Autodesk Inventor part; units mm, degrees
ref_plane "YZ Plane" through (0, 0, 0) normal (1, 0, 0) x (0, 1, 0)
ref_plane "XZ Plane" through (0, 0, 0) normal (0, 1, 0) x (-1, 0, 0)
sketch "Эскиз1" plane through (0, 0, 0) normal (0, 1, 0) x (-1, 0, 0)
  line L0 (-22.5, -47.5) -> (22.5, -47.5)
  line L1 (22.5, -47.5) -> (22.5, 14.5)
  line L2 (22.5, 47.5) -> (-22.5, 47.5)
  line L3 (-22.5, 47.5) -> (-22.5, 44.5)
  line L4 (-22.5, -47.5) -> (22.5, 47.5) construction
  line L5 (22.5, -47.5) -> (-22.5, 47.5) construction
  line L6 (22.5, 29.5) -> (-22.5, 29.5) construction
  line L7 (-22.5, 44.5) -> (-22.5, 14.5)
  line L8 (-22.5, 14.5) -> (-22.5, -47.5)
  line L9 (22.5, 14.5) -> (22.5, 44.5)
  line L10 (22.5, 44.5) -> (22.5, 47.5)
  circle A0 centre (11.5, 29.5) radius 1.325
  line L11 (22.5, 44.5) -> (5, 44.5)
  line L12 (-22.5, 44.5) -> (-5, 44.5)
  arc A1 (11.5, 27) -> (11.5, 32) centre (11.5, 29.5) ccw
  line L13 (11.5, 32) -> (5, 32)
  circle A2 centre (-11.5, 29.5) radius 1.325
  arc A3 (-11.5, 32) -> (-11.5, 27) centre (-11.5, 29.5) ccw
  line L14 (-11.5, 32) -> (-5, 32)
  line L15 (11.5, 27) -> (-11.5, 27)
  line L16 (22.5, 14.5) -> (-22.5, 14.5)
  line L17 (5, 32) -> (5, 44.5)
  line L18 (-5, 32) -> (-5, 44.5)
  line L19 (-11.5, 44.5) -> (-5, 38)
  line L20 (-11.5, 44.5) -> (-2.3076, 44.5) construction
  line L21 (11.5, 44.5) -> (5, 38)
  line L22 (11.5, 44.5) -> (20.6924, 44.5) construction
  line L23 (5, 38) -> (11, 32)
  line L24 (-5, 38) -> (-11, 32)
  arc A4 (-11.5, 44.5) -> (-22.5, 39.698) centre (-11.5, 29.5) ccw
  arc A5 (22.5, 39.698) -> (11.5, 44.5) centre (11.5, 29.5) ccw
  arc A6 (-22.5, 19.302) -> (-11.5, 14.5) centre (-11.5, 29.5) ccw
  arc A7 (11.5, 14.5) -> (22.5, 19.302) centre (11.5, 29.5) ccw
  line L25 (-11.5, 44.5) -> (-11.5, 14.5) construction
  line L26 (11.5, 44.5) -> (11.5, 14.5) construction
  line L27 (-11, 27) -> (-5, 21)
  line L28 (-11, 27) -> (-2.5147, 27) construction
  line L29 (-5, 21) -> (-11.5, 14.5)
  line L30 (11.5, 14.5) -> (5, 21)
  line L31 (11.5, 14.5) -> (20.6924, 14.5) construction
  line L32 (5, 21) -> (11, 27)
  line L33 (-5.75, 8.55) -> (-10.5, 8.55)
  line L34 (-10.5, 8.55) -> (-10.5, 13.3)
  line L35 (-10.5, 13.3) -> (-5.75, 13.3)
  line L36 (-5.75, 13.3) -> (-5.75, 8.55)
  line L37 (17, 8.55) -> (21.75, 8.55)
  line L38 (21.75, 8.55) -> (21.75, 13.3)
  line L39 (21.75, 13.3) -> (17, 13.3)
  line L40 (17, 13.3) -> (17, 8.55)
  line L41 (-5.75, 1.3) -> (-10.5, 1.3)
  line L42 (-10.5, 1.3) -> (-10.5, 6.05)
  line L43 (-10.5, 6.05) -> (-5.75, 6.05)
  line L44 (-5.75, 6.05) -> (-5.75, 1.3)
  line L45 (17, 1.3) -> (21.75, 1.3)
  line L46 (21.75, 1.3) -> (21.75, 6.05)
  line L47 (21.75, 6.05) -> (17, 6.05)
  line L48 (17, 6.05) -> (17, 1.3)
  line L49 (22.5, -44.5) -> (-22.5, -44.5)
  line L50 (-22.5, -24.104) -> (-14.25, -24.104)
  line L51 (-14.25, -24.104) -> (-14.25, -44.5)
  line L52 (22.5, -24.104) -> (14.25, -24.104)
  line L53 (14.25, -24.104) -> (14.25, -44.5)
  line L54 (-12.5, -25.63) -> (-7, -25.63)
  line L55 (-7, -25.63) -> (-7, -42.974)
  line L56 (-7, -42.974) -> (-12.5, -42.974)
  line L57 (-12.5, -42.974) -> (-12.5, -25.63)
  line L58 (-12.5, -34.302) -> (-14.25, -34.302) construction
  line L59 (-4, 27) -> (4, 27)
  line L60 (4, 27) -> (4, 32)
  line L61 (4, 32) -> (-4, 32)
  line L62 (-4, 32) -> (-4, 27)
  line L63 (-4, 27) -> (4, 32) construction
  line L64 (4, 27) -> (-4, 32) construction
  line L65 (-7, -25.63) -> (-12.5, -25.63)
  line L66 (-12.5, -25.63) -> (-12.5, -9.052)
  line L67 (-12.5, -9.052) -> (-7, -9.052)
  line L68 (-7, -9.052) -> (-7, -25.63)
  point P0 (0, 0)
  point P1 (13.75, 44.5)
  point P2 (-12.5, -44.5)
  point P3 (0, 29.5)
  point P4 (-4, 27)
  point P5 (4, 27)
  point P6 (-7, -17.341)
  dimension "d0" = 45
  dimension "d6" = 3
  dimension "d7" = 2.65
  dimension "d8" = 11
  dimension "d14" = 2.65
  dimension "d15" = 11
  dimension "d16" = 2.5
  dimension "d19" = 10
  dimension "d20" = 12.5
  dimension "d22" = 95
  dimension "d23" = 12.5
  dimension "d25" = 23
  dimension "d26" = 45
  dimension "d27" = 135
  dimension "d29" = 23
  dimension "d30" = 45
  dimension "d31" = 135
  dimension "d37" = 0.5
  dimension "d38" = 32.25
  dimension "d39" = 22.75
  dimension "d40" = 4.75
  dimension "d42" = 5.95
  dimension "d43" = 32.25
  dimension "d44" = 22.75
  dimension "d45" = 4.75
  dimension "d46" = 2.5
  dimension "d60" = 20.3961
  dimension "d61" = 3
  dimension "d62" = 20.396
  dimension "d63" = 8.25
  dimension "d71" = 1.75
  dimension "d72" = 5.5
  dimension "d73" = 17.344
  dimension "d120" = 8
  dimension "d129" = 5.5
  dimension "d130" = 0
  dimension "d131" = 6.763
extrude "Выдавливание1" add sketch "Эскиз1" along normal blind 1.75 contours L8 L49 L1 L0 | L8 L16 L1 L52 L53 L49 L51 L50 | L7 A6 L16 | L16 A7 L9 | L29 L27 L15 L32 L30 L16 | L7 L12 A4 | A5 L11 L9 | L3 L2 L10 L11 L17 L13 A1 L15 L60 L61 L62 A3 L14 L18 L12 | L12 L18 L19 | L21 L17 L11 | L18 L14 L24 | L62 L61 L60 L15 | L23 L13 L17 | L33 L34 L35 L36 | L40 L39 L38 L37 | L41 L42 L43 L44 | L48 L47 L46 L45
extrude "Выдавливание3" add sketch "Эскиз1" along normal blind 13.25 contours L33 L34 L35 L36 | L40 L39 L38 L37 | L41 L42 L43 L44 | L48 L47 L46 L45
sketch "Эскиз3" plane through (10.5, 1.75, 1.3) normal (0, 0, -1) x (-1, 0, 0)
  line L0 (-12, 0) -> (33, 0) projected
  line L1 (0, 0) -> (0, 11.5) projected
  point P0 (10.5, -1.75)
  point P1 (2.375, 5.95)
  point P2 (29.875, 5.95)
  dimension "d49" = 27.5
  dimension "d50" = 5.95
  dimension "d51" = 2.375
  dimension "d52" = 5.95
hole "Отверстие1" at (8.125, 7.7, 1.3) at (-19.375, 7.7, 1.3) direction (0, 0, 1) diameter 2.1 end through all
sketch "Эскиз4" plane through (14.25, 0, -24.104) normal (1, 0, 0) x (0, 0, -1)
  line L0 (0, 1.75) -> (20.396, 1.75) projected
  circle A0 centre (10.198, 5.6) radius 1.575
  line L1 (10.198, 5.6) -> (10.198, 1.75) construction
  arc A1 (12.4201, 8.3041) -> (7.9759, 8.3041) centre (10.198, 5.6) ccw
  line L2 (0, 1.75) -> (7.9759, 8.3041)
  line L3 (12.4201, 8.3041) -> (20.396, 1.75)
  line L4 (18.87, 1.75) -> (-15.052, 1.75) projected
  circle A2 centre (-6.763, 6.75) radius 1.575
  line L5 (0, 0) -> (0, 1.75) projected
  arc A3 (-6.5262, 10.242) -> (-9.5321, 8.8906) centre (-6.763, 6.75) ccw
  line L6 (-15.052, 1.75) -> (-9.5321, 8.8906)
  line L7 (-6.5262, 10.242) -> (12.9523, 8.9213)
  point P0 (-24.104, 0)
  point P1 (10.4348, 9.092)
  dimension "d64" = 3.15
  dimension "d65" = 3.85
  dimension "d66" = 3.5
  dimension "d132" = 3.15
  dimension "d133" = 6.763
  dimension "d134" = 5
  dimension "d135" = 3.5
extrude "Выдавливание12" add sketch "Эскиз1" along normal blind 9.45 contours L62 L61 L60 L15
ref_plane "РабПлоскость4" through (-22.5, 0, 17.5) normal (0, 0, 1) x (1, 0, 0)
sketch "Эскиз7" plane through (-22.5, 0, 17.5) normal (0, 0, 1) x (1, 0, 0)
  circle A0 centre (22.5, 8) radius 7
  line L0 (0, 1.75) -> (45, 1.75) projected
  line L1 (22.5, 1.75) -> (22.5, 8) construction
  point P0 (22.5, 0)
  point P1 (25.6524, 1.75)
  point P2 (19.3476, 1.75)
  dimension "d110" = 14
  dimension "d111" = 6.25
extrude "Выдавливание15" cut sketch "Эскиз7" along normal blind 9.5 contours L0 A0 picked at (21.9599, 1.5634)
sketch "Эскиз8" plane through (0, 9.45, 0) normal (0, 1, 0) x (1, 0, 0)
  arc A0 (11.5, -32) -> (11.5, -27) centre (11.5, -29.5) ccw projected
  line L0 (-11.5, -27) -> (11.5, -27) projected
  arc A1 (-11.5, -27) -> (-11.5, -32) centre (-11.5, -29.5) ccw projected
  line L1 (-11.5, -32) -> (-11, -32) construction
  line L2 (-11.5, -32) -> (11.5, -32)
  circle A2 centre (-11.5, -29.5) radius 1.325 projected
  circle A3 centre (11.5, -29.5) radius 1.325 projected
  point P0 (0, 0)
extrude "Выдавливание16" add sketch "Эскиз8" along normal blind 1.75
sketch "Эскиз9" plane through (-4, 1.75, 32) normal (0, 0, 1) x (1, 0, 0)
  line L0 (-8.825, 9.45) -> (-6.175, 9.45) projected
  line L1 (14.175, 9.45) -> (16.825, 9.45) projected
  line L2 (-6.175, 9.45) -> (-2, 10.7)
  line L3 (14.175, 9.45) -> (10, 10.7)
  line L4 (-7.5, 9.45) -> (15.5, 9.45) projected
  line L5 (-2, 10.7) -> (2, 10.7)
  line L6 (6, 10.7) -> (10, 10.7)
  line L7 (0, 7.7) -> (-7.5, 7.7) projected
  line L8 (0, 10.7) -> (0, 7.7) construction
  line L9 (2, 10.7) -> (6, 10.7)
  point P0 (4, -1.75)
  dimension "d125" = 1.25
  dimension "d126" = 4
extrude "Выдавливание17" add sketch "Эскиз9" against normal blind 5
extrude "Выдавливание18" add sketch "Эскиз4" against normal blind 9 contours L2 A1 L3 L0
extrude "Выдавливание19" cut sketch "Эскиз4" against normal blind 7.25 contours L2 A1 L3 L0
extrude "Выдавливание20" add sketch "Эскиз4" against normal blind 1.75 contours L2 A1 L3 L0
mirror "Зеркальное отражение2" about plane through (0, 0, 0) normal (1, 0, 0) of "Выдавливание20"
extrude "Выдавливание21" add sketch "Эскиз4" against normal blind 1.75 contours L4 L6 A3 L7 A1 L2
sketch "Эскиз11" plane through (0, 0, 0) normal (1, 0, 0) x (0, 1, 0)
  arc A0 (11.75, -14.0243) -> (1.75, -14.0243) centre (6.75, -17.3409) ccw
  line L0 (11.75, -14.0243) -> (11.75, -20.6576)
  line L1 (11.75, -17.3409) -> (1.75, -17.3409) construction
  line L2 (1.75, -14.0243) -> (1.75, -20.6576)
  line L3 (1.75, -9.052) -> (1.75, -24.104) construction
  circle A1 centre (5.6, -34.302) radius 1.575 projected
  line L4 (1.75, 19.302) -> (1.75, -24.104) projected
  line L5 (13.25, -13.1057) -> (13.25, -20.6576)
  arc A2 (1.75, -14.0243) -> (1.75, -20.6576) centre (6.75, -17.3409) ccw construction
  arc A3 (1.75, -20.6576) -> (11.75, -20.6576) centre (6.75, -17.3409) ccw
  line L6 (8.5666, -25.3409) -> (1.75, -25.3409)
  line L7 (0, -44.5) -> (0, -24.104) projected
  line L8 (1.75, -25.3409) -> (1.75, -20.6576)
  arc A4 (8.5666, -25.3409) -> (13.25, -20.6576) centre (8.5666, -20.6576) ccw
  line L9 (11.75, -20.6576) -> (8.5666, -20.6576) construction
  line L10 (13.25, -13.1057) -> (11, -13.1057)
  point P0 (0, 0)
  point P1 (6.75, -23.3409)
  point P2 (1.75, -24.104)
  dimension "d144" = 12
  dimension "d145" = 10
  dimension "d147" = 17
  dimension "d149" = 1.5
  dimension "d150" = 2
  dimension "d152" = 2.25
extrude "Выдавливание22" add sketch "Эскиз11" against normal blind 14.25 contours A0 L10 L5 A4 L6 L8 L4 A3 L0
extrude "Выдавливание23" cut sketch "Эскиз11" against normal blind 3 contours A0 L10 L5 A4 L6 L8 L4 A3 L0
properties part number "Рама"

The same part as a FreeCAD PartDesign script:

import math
import FreeCAD as App
import Part
import Sketcher
from FreeCAD import Vector
Q = App.Units.Quantity


def add_polygon(sketch, points):
    """Adds a closed chain of lines whose ends are joined by coincident constraints."""
    first, n = sketch.GeometryCount, len(points)
    for a, b in zip(points, points[1:] + points[:1]):
        sketch.addGeometry(Part.LineSegment(App.Vector(*a, 0), App.Vector(*b, 0)), False)
    for i in range(n):
        sketch.addConstraint(Sketcher.Constraint("Coincident", first + i, 2, first + (i + 1) % n, 1))

doc = App.newDocument("Part")
body = doc.addObject("PartDesign::Body", "Body")

# Sketch on XZ plane
sketch1 = body.newObject("Sketcher::SketchObject", "Sketch")
sketch1.AttachmentSupport = (doc.getObject("XZ_Plane"), [""])
sketch1.MapMode = "FlatFace"
sketch1.addGeometry(Part.LineSegment(Vector(22.5, -44.5, 0), Vector(22.5, -47.5, 0)), False)  # 0
sketch1.addGeometry(Part.LineSegment(Vector(22.5, -47.5, 0), Vector(-22.5, -47.5, 0)), False)  # 1
sketch1.addGeometry(Part.LineSegment(Vector(-22.5, -47.5, 0), Vector(-22.5, -44.5, 0)), False)  # 2
sketch1.addGeometry(Part.LineSegment(Vector(-22.5, -44.5, 0), Vector(-14.2, -44.5, 0)), False)  # 3
sketch1.addGeometry(Part.LineSegment(Vector(-14.2, -44.5, 0), Vector(-14.2, -24.1, 0)), False)  # 4
sketch1.addGeometry(Part.LineSegment(Vector(-14.2, -24.1, 0), Vector(-22.5, -24.1, 0)), False)  # 5
sketch1.addGeometry(Part.LineSegment(Vector(-22.5, -24.1, 0), Vector(-22.5, 19.3, 0)), False)  # 6
sketch1.addGeometry(Part.ArcOfCircle(Part.Circle(Vector(-11.5, 29.5, 0), Vector(0, 0, 1), 15), math.radians(-137), math.radians(-90)), False)  # 7
sketch1.addGeometry(Part.LineSegment(Vector(-11.5, 14.5, 0), Vector(-5, 21, 0)), False)  # 8
sketch1.addGeometry(Part.LineSegment(Vector(-5, 21, 0), Vector(-11, 27, 0)), False)  # 9
sketch1.addGeometry(Part.LineSegment(Vector(-11, 27, 0), Vector(-11.5, 27, 0)), False)  # 10
sketch1.addGeometry(Part.ArcOfCircle(Part.Circle(Vector(-11.5, 29.5, 0), Vector(0, 0, 1), 2.5), math.radians(90), math.radians(270)), False)  # 11
sketch1.addGeometry(Part.LineSegment(Vector(-11.5, 32, 0), Vector(-11, 32, 0)), False)  # 12
sketch1.addGeometry(Part.LineSegment(Vector(-11, 32, 0), Vector(-5, 38, 0)), False)  # 13
sketch1.addGeometry(Part.LineSegment(Vector(-5, 38, 0), Vector(-11.5, 44.5, 0)), False)  # 14
sketch1.addGeometry(Part.ArcOfCircle(Part.Circle(Vector(-11.5, 29.5, 0), Vector(0, 0, 1), 15), math.radians(90), math.radians(137)), False)  # 15
sketch1.addGeometry(Part.LineSegment(Vector(-22.5, 39.7, 0), Vector(-22.5, 47.5, 0)), False)  # 16
sketch1.addGeometry(Part.LineSegment(Vector(-22.5, 47.5, 0), Vector(22.5, 47.5, 0)), False)  # 17
sketch1.addGeometry(Part.LineSegment(Vector(22.5, 47.5, 0), Vector(22.5, 39.7, 0)), False)  # 18
sketch1.addGeometry(Part.ArcOfCircle(Part.Circle(Vector(11.5, 29.5, 0), Vector(0, 0, 1), 15), math.radians(43), math.radians(90)), False)  # 19
sketch1.addGeometry(Part.LineSegment(Vector(11.5, 44.5, 0), Vector(5, 38, 0)), False)  # 20
sketch1.addGeometry(Part.LineSegment(Vector(5, 38, 0), Vector(11, 32, 0)), False)  # 21
sketch1.addGeometry(Part.LineSegment(Vector(11, 32, 0), Vector(11.5, 32, 0)), False)  # 22
sketch1.addGeometry(Part.ArcOfCircle(Part.Circle(Vector(11.5, 29.5, 0), Vector(0, 0, 1), 2.5), math.radians(-90), math.radians(90)), False)  # 23
sketch1.addGeometry(Part.LineSegment(Vector(11.5, 27, 0), Vector(11, 27, 0)), False)  # 24
sketch1.addGeometry(Part.LineSegment(Vector(11, 27, 0), Vector(5, 21, 0)), False)  # 25
sketch1.addGeometry(Part.LineSegment(Vector(5, 21, 0), Vector(11.5, 14.5, 0)), False)  # 26
sketch1.addGeometry(Part.ArcOfCircle(Part.Circle(Vector(11.5, 29.5, 0), Vector(0, 0, 1), 15), math.radians(-90), math.radians(-43)), False)  # 27
sketch1.addGeometry(Part.LineSegment(Vector(22.5, 19.3, 0), Vector(22.5, -24.1, 0)), False)  # 28
sketch1.addGeometry(Part.LineSegment(Vector(22.5, -24.1, 0), Vector(14.2, -24.1, 0)), False)  # 29
sketch1.addGeometry(Part.LineSegment(Vector(14.2, -24.1, 0), Vector(14.2, -44.5, 0)), False)  # 30
sketch1.addGeometry(Part.LineSegment(Vector(14.2, -44.5, 0), Vector(22.5, -44.5, 0)), False)  # 31
add_polygon(sketch1, [(12.5, -43), (12.5, -9.1), (7, -9.1), (7, -43)])  # lines 32-35
sketch1.addGeometry(Part.Circle(Vector(11.5, 29.5, 0), Vector(0, 0, 1), 1.3), False)  # 36
sketch1.addGeometry(Part.Circle(Vector(-11.5, 29.5, 0), Vector(0, 0, 1), 1.3), False)  # 37
sketch1.addConstraint([
    Sketcher.Constraint("Coincident", 0, 2, 1, 1),
    Sketcher.Constraint("Coincident", 1, 2, 2, 1),
    Sketcher.Constraint("Coincident", 2, 2, 3, 1),
    Sketcher.Constraint("Coincident", 3, 2, 4, 1),
    Sketcher.Constraint("Coincident", 4, 2, 5, 1),
    Sketcher.Constraint("Coincident", 5, 2, 6, 1),
    Sketcher.Constraint("Coincident", 6, 2, 7, 1),
    Sketcher.Constraint("Coincident", 7, 2, 8, 1),
    Sketcher.Constraint("Coincident", 8, 2, 9, 1),
    Sketcher.Constraint("Coincident", 9, 2, 10, 1),
    Sketcher.Constraint("Tangent", 10, 2, 11, 2),
    Sketcher.Constraint("Tangent", 11, 1, 12, 1),
    Sketcher.Constraint("Coincident", 12, 2, 13, 1),
    Sketcher.Constraint("Coincident", 13, 2, 14, 1),
    Sketcher.Constraint("Coincident", 14, 2, 15, 1),
    Sketcher.Constraint("Coincident", 15, 2, 16, 1),
    Sketcher.Constraint("Coincident", 16, 2, 17, 1),
    Sketcher.Constraint("Coincident", 17, 2, 18, 1),
    Sketcher.Constraint("Coincident", 18, 2, 19, 1),
    Sketcher.Constraint("Coincident", 19, 2, 20, 1),
    Sketcher.Constraint("Coincident", 20, 2, 21, 1),
    Sketcher.Constraint("Coincident", 21, 2, 22, 1),
    Sketcher.Constraint("Tangent", 22, 2, 23, 2),
    Sketcher.Constraint("Tangent", 23, 1, 24, 1),
    Sketcher.Constraint("Coincident", 24, 2, 25, 1),
    Sketcher.Constraint("Coincident", 25, 2, 26, 1),
    Sketcher.Constraint("Coincident", 26, 2, 27, 1),
    Sketcher.Constraint("Coincident", 27, 2, 28, 1),
    Sketcher.Constraint("Coincident", 28, 2, 29, 1),
    Sketcher.Constraint("Coincident", 29, 2, 30, 1),
    Sketcher.Constraint("Coincident", 30, 2, 31, 1),
    Sketcher.Constraint("Coincident", 31, 2, 0, 1),
    Sketcher.Constraint("Vertical", 0),
    Sketcher.Constraint("Horizontal", 1),
    Sketcher.Constraint("Vertical", 2),
    Sketcher.Constraint("Horizontal", 3),
    Sketcher.Constraint("Vertical", 4),
    Sketcher.Constraint("Horizontal", 5),
    Sketcher.Constraint("Vertical", 6),
    Sketcher.Constraint("Horizontal", 10),
    Sketcher.Constraint("Horizontal", 12),
    Sketcher.Constraint("Vertical", 16),
    Sketcher.Constraint("Horizontal", 17),
    Sketcher.Constraint("Vertical", 18),
    Sketcher.Constraint("Horizontal", 22),
    Sketcher.Constraint("Horizontal", 24),
    Sketcher.Constraint("Vertical", 28),
    Sketcher.Constraint("Horizontal", 29),
    Sketcher.Constraint("Vertical", 30),
    Sketcher.Constraint("Horizontal", 31),
    Sketcher.Constraint("Vertical", 32),
    Sketcher.Constraint("Horizontal", 33),
    Sketcher.Constraint("Vertical", 34),
    Sketcher.Constraint("Horizontal", 35),
    Sketcher.Constraint("Coincident", 11, 3, 7, 3),
    Sketcher.Constraint("Coincident", 15, 3, 7, 3),
    Sketcher.Constraint("Coincident", 23, 3, 19, 3),
    Sketcher.Constraint("Coincident", 27, 3, 19, 3),
    Sketcher.Constraint("Coincident", 36, 3, 19, 3),
    Sketcher.Constraint("Coincident", 37, 3, 7, 3),
    Sketcher.Constraint("Equal", 7, 15),
    Sketcher.Constraint("Equal", 15, 19),
    Sketcher.Constraint("Equal", 11, 23),
    Sketcher.Constraint("Equal", 19, 27),
    Sketcher.Constraint("Equal", 36, 37),
    Sketcher.Constraint("Symmetric", 0, 2, 16, 2, -1, 1),
    Sketcher.Constraint("Symmetric", 7, 3, 19, 3, -2),
    Sketcher.Constraint("Symmetric", 13, 2, 20, 2, -2),
    Sketcher.Constraint("Symmetric", 8, 2, 25, 2, -2),
    Sketcher.Constraint("Symmetric", 5, 2, 28, 2, -2),
    Sketcher.Constraint("Symmetric", 3, 2, 30, 2, -2),
    Sketcher.Constraint("Perpendicular", 8, 9),
    Sketcher.Constraint("Perpendicular", 9, 13),
    Sketcher.Constraint("Perpendicular", 13, 14),
    Sketcher.Constraint("Perpendicular", 14, 20),
    Sketcher.Constraint("Perpendicular", 20, 21),
    Sketcher.Constraint("Perpendicular", 21, 25),
    Sketcher.Constraint("Perpendicular", 25, 26),
    Sketcher.Constraint("Horizontal", 15, 2, 18, 2),
    Sketcher.Constraint("Vertical", 2, 2, 5, 2),
    Sketcher.Constraint("Vertical", 37, 3, 7, 2),
    Sketcher.Constraint("Vertical", 9, 2, 12, 2),
    Sketcher.Constraint("Vertical", 8, 2, 13, 2),
    Sketcher.Constraint("Vertical", 11, 1, 14, 2),
    Sketcher.Constraint("Vertical", 6, 2, 15, 2),
    Sketcher.Constraint("Radius", 11, Q("2.5 mm")),
    Sketcher.Constraint("Diameter", 36, Q("2.65 mm")),
    Sketcher.Constraint("DistanceX", 1, 2, 1, 1, Q("45 mm")),
    Sketcher.Constraint("DistanceY", 0, 2, 0, 1, Q("3 mm")),
    Sketcher.Constraint("DistanceX", 10, 2, 10, 1, Q("0.5 mm")),
    Sketcher.Constraint("DistanceX", 33, 2, 33, 1, Q("5.5 mm")),
    Sketcher.Constraint("DistanceX", 9, 2, -1, 1, Q("11 mm")),
    Sketcher.Constraint("Radius", 7, Q("15 mm")),
    Sketcher.Constraint("DistanceY", 14, 2, 16, 2, Q("3 mm")),
    Sketcher.Constraint("DistanceX", 32, 2, 28, 2, Q("10 mm")),
    Sketcher.Constraint("DistanceX", 3, 1, 3, 2, Q("8.25 mm")),
    Sketcher.Constraint("DistanceY", 4, 1, 4, 2, Q("20.396 mm")),
    Sketcher.Constraint("DistanceY", -1, 1, 8, 2, Q("21 mm")),
    Sketcher.Constraint("DistanceY", 32, 1, 32, 2, Q("33.922 mm")),
    Sketcher.Constraint("DistanceY", 34, 2, 29, 2, Q("18.87 mm")),
])
pad1 = body.newObject("PartDesign::Pad", "Pad")
pad1.Profile = sketch1
pad1.Length = 1.75
pad1.Reversed = True

# Sketch on XZ plane
sketch2 = body.newObject("Sketcher::SketchObject", "Sketch001")
sketch2.AttachmentSupport = (doc.getObject("XZ_Plane"), [""])
sketch2.MapMode = "FlatFace"
add_polygon(sketch2, [(10.5, 8.6), (5.8, 8.6), (5.8, 13.3), (10.5, 13.3)])  # lines 0-3
add_polygon(sketch2, [(-17, 13.3), (-17, 8.6), (-21.8, 8.6), (-21.8, 13.3)])  # lines 4-7
add_polygon(sketch2, [(10.5, 1.3), (5.8, 1.3), (5.8, 6), (10.5, 6)])  # lines 8-11
add_polygon(sketch2, [(-17, 6), (-17, 1.3), (-21.8, 1.3), (-21.8, 6)])  # lines 12-15
sketch2.addConstraint([
    Sketcher.Constraint("Horizontal", 0),
    Sketcher.Constraint("Vertical", 1),
    Sketcher.Constraint("Horizontal", 2),
    Sketcher.Constraint("Vertical", 3),
    Sketcher.Constraint("Vertical", 4),
    Sketcher.Constraint("Horizontal", 5),
    Sketcher.Constraint("Vertical", 6),
    Sketcher.Constraint("Horizontal", 7),
    Sketcher.Constraint("Horizontal", 8),
    Sketcher.Constraint("Vertical", 9),
    Sketcher.Constraint("Horizontal", 10),
    Sketcher.Constraint("Vertical", 11),
    Sketcher.Constraint("Vertical", 12),
    Sketcher.Constraint("Horizontal", 13),
    Sketcher.Constraint("Vertical", 14),
    Sketcher.Constraint("Horizontal", 15),
    Sketcher.Constraint("Horizontal", 3, 2, 4, 2),
    Sketcher.Constraint("Horizontal", 2, 2, 6, 2),
    Sketcher.Constraint("Horizontal", 11, 2, 12, 2),
    Sketcher.Constraint("Horizontal", 10, 2, 14, 2),
    Sketcher.Constraint("Vertical", 1, 2, 8, 2),
    Sketcher.Constraint("Vertical", 3, 2, 10, 2),
    Sketcher.Constraint("Vertical", 7, 2, 12, 2),
    Sketcher.Constraint("Vertical", 6, 2, 13, 2),
    Sketcher.Constraint("Equal", 2, 5),
    Sketcher.Constraint("Equal", 15, 1),
    Sketcher.Constraint("Equal", 6, 9),
    Sketcher.Constraint("DistanceX", 0, 2, 0, 1, Q("4.75 mm")),
    Sketcher.Constraint("DistanceY", 9, 2, 0, 2, Q("2.5 mm")),
    Sketcher.Constraint("DistanceX", 4, 2, 0, 2, Q("22.75 mm")),
    Sketcher.Constraint("DistanceX", 4, 2, -1, 1, Q("17 mm")),
    Sketcher.Constraint("DistanceY", -1, 1, 1, 2, Q("13.3 mm")),
])
pad2 = body.newObject("PartDesign::Pad", "Pad001")
pad2.Profile = sketch2
pad2.Length = 13.25
pad2.Reversed = True

# Sketch on XY plane
sketch3 = body.newObject("Sketcher::SketchObject", "Sketch002")
sketch3.AttachmentSupport = (doc.getObject("XY_Plane"), [""])
sketch3.MapMode = "FlatFace"
sketch3.AttachmentOffset = App.Placement(Vector(0, 0, 1.3), App.Rotation())
sketch3.addGeometry([
    Part.Circle(Vector(8.1, 7.7, 0), Vector(0, 0, 1), 1.1),
    Part.Circle(Vector(-19.4, 7.7, 0), Vector(0, 0, 1), 1.1),
], False)
sketch3.addConstraint([
    Sketcher.Constraint("Equal", 0, 1),
    Sketcher.Constraint("Horizontal", 0, 3, 1, 3),
    Sketcher.Constraint("Diameter", 0, Q("2.1 mm")),
    Sketcher.Constraint("DistanceY", -1, 1, 0, 3, Q("7.7 mm")),
    Sketcher.Constraint("DistanceX", 1, 3, 0, 3, Q("27.5 mm")),
    Sketcher.Constraint("DistanceX", -1, 1, 0, 3, Q("8.125 mm")),
])
doc.recompute()
hole = body.newObject("PartDesign::Hole", "Hole")
hole.Profile = sketch3
hole.ThreadType = "None"
hole.Diameter = 2.1
hole.DepthType = "ThroughAll"
hole.Reversed = True

# Sketch on XZ plane
sketch4 = body.newObject("Sketcher::SketchObject", "Sketch003")
sketch4.AttachmentSupport = (doc.getObject("XZ_Plane"), [""])
sketch4.MapMode = "FlatFace"
add_polygon(sketch4, [(4, 32), (4, 27), (-4, 27), (-4, 32)])  # lines 0-3
sketch4.addConstraint([
    Sketcher.Constraint("Vertical", 0),
    Sketcher.Constraint("Horizontal", 1),
    Sketcher.Constraint("Vertical", 2),
    Sketcher.Constraint("Horizontal", 3),
    Sketcher.Constraint("DistanceX", 1, 2, 1, 1, Q("8 mm")),
    Sketcher.Constraint("DistanceY", 0, 2, 0, 1, Q("5 mm")),
    Sketcher.Constraint("DistanceX", -1, 1, 0, 2, Q("4 mm")),
    Sketcher.Constraint("DistanceY", -1, 1, 0, 2, Q("27 mm")),
])
pad3 = body.newObject("PartDesign::Pad", "Pad002")
pad3.Profile = sketch4
pad3.Length = 9.45
pad3.Reversed = True

# Sketch on XY plane
sketch5 = body.newObject("Sketcher::SketchObject", "Sketch004")
sketch5.AttachmentSupport = (doc.getObject("XY_Plane"), [""])
sketch5.MapMode = "FlatFace"
sketch5.AttachmentOffset = App.Placement(Vector(0, 0, 17.5), App.Rotation())
sketch5.addGeometry([
    Part.LineSegment(Vector(3, 2, 0), Vector(-3, 2, 0)),
    Part.ArcOfCircle(Part.Circle(Vector(0, 8, 0), Vector(0, 0, 1), 7), math.radians(-117), math.radians(-63)),
], False)
sketch5.addConstraint([
    Sketcher.Constraint("Coincident", 0, 1, 1, 2),
    Sketcher.Constraint("Coincident", 1, 1, 0, 2),
    Sketcher.Constraint("Horizontal", 0),
    Sketcher.Constraint("PointOnObject", 1, 3, -2),
    Sketcher.Constraint("Radius", 1, Q("7 mm")),
    Sketcher.Constraint("DistanceY", 0, 1, 1, 3, Q("6.25 mm")),
    Sketcher.Constraint("DistanceY", -1, 1, 1, 3, Q("8 mm")),
])
pocket1 = body.newObject("PartDesign::Pocket", "Pocket")
pocket1.Profile = sketch5
pocket1.Length = 9.5
pocket1.Reversed = True

# Sketch on XZ plane
sketch6 = body.newObject("Sketcher::SketchObject", "Sketch005")
sketch6.AttachmentSupport = (doc.getObject("XZ_Plane"), [""])
sketch6.MapMode = "FlatFace"
sketch6.AttachmentOffset = App.Placement(Vector(0, 0, -9.45), App.Rotation())
sketch6.addGeometry([
    Part.LineSegment(Vector(-11.5, 32, 0), Vector(11.5, 32, 0)),  # 0
    Part.ArcOfCircle(Part.Circle(Vector(11.5, 29.5, 0), Vector(0, 0, 1), 2.5), math.radians(-90), math.radians(90)),  # 1
    Part.LineSegment(Vector(11.5, 27, 0), Vector(-11.5, 27, 0)),  # 2
    Part.ArcOfCircle(Part.Circle(Vector(-11.5, 29.5, 0), Vector(0, 0, 1), 2.5), math.radians(90), math.radians(270)),  # 3
    Part.Circle(Vector(-11.5, 29.5, 0), Vector(0, 0, 1), 1.3),  # 4
    Part.Circle(Vector(11.5, 29.5, 0), Vector(0, 0, 1), 1.3),  # 5
], False)
sketch6.addConstraint([
    Sketcher.Constraint("Tangent", 0, 2, 1, 2),
    Sketcher.Constraint("Tangent", 1, 1, 2, 1),
    Sketcher.Constraint("Tangent", 2, 2, 3, 2),
    Sketcher.Constraint("Tangent", 3, 1, 0, 1),
    Sketcher.Constraint("Horizontal", 0),
    Sketcher.Constraint("Horizontal", 2),
    Sketcher.Constraint("Coincident", 4, 3, 3, 3),
    Sketcher.Constraint("Coincident", 5, 3, 1, 3),
    Sketcher.Constraint("Equal", 4, 5),
    Sketcher.Constraint("Radius", 1, Q("2.5 mm")),
    Sketcher.Constraint("Diameter", 4, Q("2.65 mm")),
    Sketcher.Constraint("DistanceX", 0, 1, 0, 2, Q("23 mm")),
    Sketcher.Constraint("DistanceY", -1, 1, 0, 2, Q("32 mm")),
    Sketcher.Constraint("DistanceX", -1, 1, 1, 3, Q("11.5 mm")),
])
pad4 = body.newObject("PartDesign::Pad", "Pad003")
pad4.Profile = sketch6
pad4.Length = 1.75
pad4.Reversed = True

# Sketch on XY plane
sketch7 = body.newObject("Sketcher::SketchObject", "Sketch006")
sketch7.AttachmentSupport = (doc.getObject("XY_Plane"), [""])
sketch7.MapMode = "FlatFace"
sketch7.AttachmentOffset = App.Placement(Vector(0, 0, 32), App.Rotation())
add_polygon(sketch7, [(-6, 12.4), (-10.2, 11.2), (10.2, 11.2), (6, 12.4)])  # lines 0-3
sketch7.addConstraint([
    Sketcher.Constraint("Horizontal", 1),
    Sketcher.Constraint("Horizontal", 3),
    Sketcher.Constraint("Equal", 0, 2),
    Sketcher.Constraint("DistanceX", 3, 2, 3, 1, Q("12 mm")),
    Sketcher.Constraint("DistanceY", 1, 2, 2, 2, Q("1.25 mm")),
    Sketcher.Constraint("DistanceX", -1, 1, 2, 2, Q("6 mm")),
    Sketcher.Constraint("DistanceX", 1, 1, 1, 2, Q("20.35 mm")),
    Sketcher.Constraint("DistanceY", -1, 1, 0, 2, Q("11.2 mm")),
])
pad5 = body.newObject("PartDesign::Pad", "Pad004")
pad5.Profile = sketch7
pad5.Length = 5
pad5.Reversed = True

# Sketch on YZ plane
sketch8 = body.newObject("Sketcher::SketchObject", "Sketch007")
sketch8.AttachmentSupport = (doc.getObject("YZ_Plane"), [""])
sketch8.MapMode = "FlatFace"
sketch8.AttachmentOffset = App.Placement(Vector(0, 0, 14.25), App.Rotation())
sketch8.addGeometry([
    Part.LineSegment(Vector(8.3, -32.1, 0), Vector(1.8, -24.1, 0)),  # 0
    Part.LineSegment(Vector(1.8, -24.1, 0), Vector(1.8, -44.5, 0)),  # 1
    Part.LineSegment(Vector(1.8, -44.5, 0), Vector(8.3, -36.5, 0)),  # 2
    Part.ArcOfCircle(Part.Circle(Vector(5.6, -34.3, 0), Vector(0, 0, 1), 3.5), math.radians(-39), math.radians(39)),  # 3
    Part.Circle(Vector(5.6, -34.3, 0), Vector(0, 0, 1), 1.6),  # 4
], False)
sketch8.addConstraint([
    Sketcher.Constraint("Coincident", 0, 2, 1, 1),
    Sketcher.Constraint("Coincident", 1, 2, 2, 1),
    Sketcher.Constraint("Tangent", 2, 2, 3, 1),
    Sketcher.Constraint("Tangent", 3, 2, 0, 1),
    Sketcher.Constraint("Vertical", 1),
    Sketcher.Constraint("Coincident", 4, 3, 3, 3),
    Sketcher.Constraint("Vertical", 2, 2, 3, 2),
    Sketcher.Constraint("Radius", 3, Q("3.5 mm")),
    Sketcher.Constraint("Diameter", 4, Q("3.15 mm")),
    Sketcher.Constraint("DistanceX", 0, 2, 3, 3, Q("3.85 mm")),
    Sketcher.Constraint("DistanceX", -1, 1, 3, 3, Q("5.6 mm")),
    Sketcher.Constraint("DistanceY", 1, 2, -1, 1, Q("44.5 mm")),
    Sketcher.Constraint("DistanceY", 1, 2, 1, 1, Q("20.396 mm")),
])
pad6 = body.newObject("PartDesign::Pad", "Pad005")
pad6.Profile = sketch8
pad6.Length = 9
pad6.Reversed = True

# Sketch on YZ plane
sketch9 = body.newObject("Sketcher::SketchObject", "Sketch008")
sketch9.AttachmentSupport = (doc.getObject("YZ_Plane"), [""])
sketch9.MapMode = "FlatFace"
sketch9.AttachmentOffset = App.Placement(Vector(0, 0, 14.25), App.Rotation())
sketch9.addGeometry([
    Part.LineSegment(Vector(8.3, -32.1, 0), Vector(1.8, -24.1, 0)),  # 0
    Part.LineSegment(Vector(1.8, -24.1, 0), Vector(1.8, -44.5, 0)),  # 1
    Part.LineSegment(Vector(1.8, -44.5, 0), Vector(8.3, -36.5, 0)),  # 2
    Part.ArcOfCircle(Part.Circle(Vector(5.6, -34.3, 0), Vector(0, 0, 1), 3.5), math.radians(-39), math.radians(39)),  # 3
    Part.Circle(Vector(5.6, -34.3, 0), Vector(0, 0, 1), 1.6),  # 4
], False)
sketch9.addConstraint([
    Sketcher.Constraint("Coincident", 0, 2, 1, 1),
    Sketcher.Constraint("Coincident", 1, 2, 2, 1),
    Sketcher.Constraint("Tangent", 2, 2, 3, 1),
    Sketcher.Constraint("Tangent", 3, 2, 0, 1),
    Sketcher.Constraint("Vertical", 1),
    Sketcher.Constraint("Coincident", 4, 3, 3, 3),
    Sketcher.Constraint("Vertical", 2, 2, 3, 2),
    Sketcher.Constraint("Radius", 3, Q("3.5 mm")),
    Sketcher.Constraint("Diameter", 4, Q("3.15 mm")),
    Sketcher.Constraint("DistanceX", 0, 2, 3, 3, Q("3.85 mm")),
    Sketcher.Constraint("DistanceX", -1, 1, 3, 3, Q("5.6 mm")),
    Sketcher.Constraint("DistanceY", 1, 2, -1, 1, Q("44.5 mm")),
    Sketcher.Constraint("DistanceY", 1, 2, 1, 1, Q("20.396 mm")),
])
pocket2 = body.newObject("PartDesign::Pocket", "Pocket001")
pocket2.Profile = sketch9
pocket2.Length = 7.25

# Sketch on YZ plane
sketch10 = body.newObject("Sketcher::SketchObject", "Sketch009")
sketch10.AttachmentSupport = (doc.getObject("YZ_Plane"), [""])
sketch10.MapMode = "FlatFace"
sketch10.AttachmentOffset = App.Placement(Vector(0, 0, 14.25), App.Rotation())
sketch10.addGeometry([
    Part.LineSegment(Vector(8.3, -32.1, 0), Vector(1.8, -24.1, 0)),  # 0
    Part.LineSegment(Vector(1.8, -24.1, 0), Vector(1.8, -44.5, 0)),  # 1
    Part.LineSegment(Vector(1.8, -44.5, 0), Vector(8.3, -36.5, 0)),  # 2
    Part.ArcOfCircle(Part.Circle(Vector(5.6, -34.3, 0), Vector(0, 0, 1), 3.5), math.radians(-39), math.radians(39)),  # 3
    Part.Circle(Vector(5.6, -34.3, 0), Vector(0, 0, 1), 1.6),  # 4
], False)
sketch10.addConstraint([
    Sketcher.Constraint("Coincident", 0, 2, 1, 1),
    Sketcher.Constraint("Coincident", 1, 2, 2, 1),
    Sketcher.Constraint("Tangent", 2, 2, 3, 1),
    Sketcher.Constraint("Tangent", 3, 2, 0, 1),
    Sketcher.Constraint("Vertical", 1),
    Sketcher.Constraint("Coincident", 4, 3, 3, 3),
    Sketcher.Constraint("Vertical", 2, 2, 3, 2),
    Sketcher.Constraint("Radius", 3, Q("3.5 mm")),
    Sketcher.Constraint("Diameter", 4, Q("3.15 mm")),
    Sketcher.Constraint("DistanceX", 0, 2, 3, 3, Q("3.85 mm")),
    Sketcher.Constraint("DistanceX", -1, 1, 3, 3, Q("5.6 mm")),
    Sketcher.Constraint("DistanceY", 1, 2, -1, 1, Q("44.5 mm")),
    Sketcher.Constraint("DistanceY", 1, 2, 1, 1, Q("20.396 mm")),
])
pad7 = body.newObject("PartDesign::Pad", "Pad006")
pad7.Profile = sketch10
pad7.Length = 1.75
pad7.Reversed = True
doc.recompute()

mirrored = body.newObject("PartDesign::Mirrored", "Mirrored")
mirrored.Originals = [pad7]
mirrored.MirrorPlane = (doc.getObject("YZ_Plane"), [""])
body.Tip = mirrored

# Sketch on YZ plane
sketch11 = body.newObject("Sketcher::SketchObject", "Sketch010")
sketch11.AttachmentSupport = (doc.getObject("YZ_Plane"), [""])
sketch11.MapMode = "FlatFace"
sketch11.AttachmentOffset = App.Placement(Vector(0, 0, 14.25), App.Rotation())
sketch11.addGeometry([
    Part.LineSegment(Vector(1.8, -9.1, 0), Vector(1.8, -24.1, 0)),  # 0
    Part.LineSegment(Vector(1.8, -24.1, 0), Vector(8.3, -32.1, 0)),  # 1
    Part.ArcOfCircle(Part.Circle(Vector(5.6, -34.3, 0), Vector(0, 0, 1), 3.5), math.radians(-4), math.radians(39)),  # 2
    Part.LineSegment(Vector(9.1, -34.5, 0), Vector(10.2, -17.6, 0)),  # 3
    Part.ArcOfCircle(Part.Circle(Vector(6.8, -17.3, 0), Vector(0, 0, 1), 3.5), math.radians(-4), math.radians(52)),  # 4
    Part.LineSegment(Vector(8.9, -14.6, 0), Vector(1.8, -9.1, 0)),  # 5
    Part.Circle(Vector(6.8, -17.3, 0), Vector(0, 0, 1), 1.6),  # 6
], False)
sketch11.addConstraint([
    Sketcher.Constraint("Coincident", 0, 2, 1, 1),
    Sketcher.Constraint("Tangent", 1, 2, 2, 2),
    Sketcher.Constraint("Tangent", 2, 1, 3, 1),
    Sketcher.Constraint("Tangent", 3, 2, 4, 1),
    Sketcher.Constraint("Tangent", 4, 2, 5, 1),
    Sketcher.Constraint("Coincident", 5, 2, 0, 1),
    Sketcher.Constraint("Vertical", 0),
    Sketcher.Constraint("Coincident", 6, 3, 4, 3),
    Sketcher.Constraint("Equal", 2, 4),
    Sketcher.Constraint("Radius", 2, Q("3.5 mm")),
    Sketcher.Constraint("Diameter", 6, Q("3.15 mm")),
    Sketcher.Constraint("DistanceX", 0, 2, 4, 3, Q("5 mm")),
    Sketcher.Constraint("DistanceX", 0, 2, 2, 3, Q("3.85 mm")),
    Sketcher.Constraint("Distance", 3, Q("17 mm")),
    Sketcher.Constraint("DistanceY", 0, 2, 4, 3, Q("6.763 mm")),
    Sketcher.Constraint("DistanceX", -1, 1, 2, 3, Q("5.6 mm")),
    Sketcher.Constraint("DistanceY", 0, 2, 0, 1, Q("15.052 mm")),
    Sketcher.Constraint("DistanceY", 1, 2, -1, 1, Q("32.08 mm")),
])
pad8 = body.newObject("PartDesign::Pad", "Pad007")
pad8.Profile = sketch11
pad8.Length = 1.75
pad8.Reversed = True

# Sketch on YZ plane
sketch12 = body.newObject("Sketcher::SketchObject", "Sketch011")
sketch12.AttachmentSupport = (doc.getObject("YZ_Plane"), [""])
sketch12.MapMode = "FlatFace"
sketch12.addGeometry([
    Part.ArcOfCircle(Part.Circle(Vector(6.8, -17.3, 0), Vector(0, 0, 1), 6), math.radians(33.56), math.radians(44.9)),  # 0
    Part.LineSegment(Vector(11.8, -14, 0), Vector(11.8, -20.7, 0)),  # 1
    Part.ArcOfCircle(Part.Circle(Vector(6.8, -17.3, 0), Vector(0, 0, 1), 6), math.radians(-146), math.radians(-34)),  # 2
    Part.LineSegment(Vector(1.8, -20.7, 0), Vector(1.8, -25.3, 0)),  # 3
    Part.LineSegment(Vector(1.8, -25.3, 0), Vector(8.6, -25.3, 0)),  # 4
    Part.ArcOfCircle(Part.Circle(Vector(8.6, -20.7, 0), Vector(0, 0, 1), 4.7), math.radians(-90), math.radians(0)),  # 5
    Part.LineSegment(Vector(13.2, -20.7, 0), Vector(13.2, -13.1, 0)),  # 6
    Part.LineSegment(Vector(13.2, -13.1, 0), Vector(11, -13.1, 0)),  # 7
], False)
sketch12.addConstraint([
    Sketcher.Constraint("Coincident", 0, 1, 1, 1),
    Sketcher.Constraint("Coincident", 1, 2, 2, 2),
    Sketcher.Constraint("Coincident", 2, 1, 3, 1),
    Sketcher.Constraint("Coincident", 3, 2, 4, 1),
    Sketcher.Constraint("Tangent", 4, 2, 5, 1),
    Sketcher.Constraint("Tangent", 5, 2, 6, 1),
    Sketcher.Constraint("Coincident", 6, 2, 7, 1),
    Sketcher.Constraint("Coincident", 7, 2, 0, 2),
    Sketcher.Constraint("Vertical", 1),
    Sketcher.Constraint("Vertical", 3),
    Sketcher.Constraint("Horizontal", 4),
    Sketcher.Constraint("Vertical", 6),
    Sketcher.Constraint("Horizontal", 7),
    Sketcher.Constraint("Coincident", 2, 3, 0, 3),
    Sketcher.Constraint("Equal", 0, 2),
    Sketcher.Constraint("Horizontal", 5, 3, 1, 2),
    Sketcher.Constraint("Horizontal", 1, 2, 2, 1),
    Sketcher.Constraint("Radius", 0, Q("6 mm")),
    Sketcher.Constraint("DistanceX", 2, 1, 1, 2, Q("10 mm")),
    Sketcher.Constraint("DistanceX", 7, 2, 7, 1, Q("2.25 mm")),
    Sketcher.Constraint("DistanceX", 1, 2, 5, 2, Q("1.5 mm")),
    Sketcher.Constraint("DistanceX", -1, 1, 7, 2, Q("11 mm")),
    Sketcher.Constraint("DistanceY", 3, 2, 0, 3, Q("8 mm")),
    Sketcher.Constraint("DistanceY", 0, 3, -1, 1, Q("17.341 mm")),
])
pad9 = body.newObject("PartDesign::Pad", "Pad008")
pad9.Profile = sketch12
pad9.Length = 14.25
pad9.Reversed = True

# Sketch on YZ plane
sketch13 = body.newObject("Sketcher::SketchObject", "Sketch012")
sketch13.AttachmentSupport = (doc.getObject("YZ_Plane"), [""])
sketch13.MapMode = "FlatFace"
sketch13.addGeometry([
    Part.ArcOfCircle(Part.Circle(Vector(6.8, -17.3, 0), Vector(0, 0, 1), 6), math.radians(33.56), math.radians(44.9)),  # 0
    Part.LineSegment(Vector(11.8, -14, 0), Vector(11.8, -20.7, 0)),  # 1
    Part.ArcOfCircle(Part.Circle(Vector(6.8, -17.3, 0), Vector(0, 0, 1), 6), math.radians(-146), math.radians(-34)),  # 2
    Part.LineSegment(Vector(1.8, -20.7, 0), Vector(1.8, -25.3, 0)),  # 3
    Part.LineSegment(Vector(1.8, -25.3, 0), Vector(8.6, -25.3, 0)),  # 4
    Part.ArcOfCircle(Part.Circle(Vector(8.6, -20.7, 0), Vector(0, 0, 1), 4.7), math.radians(-90), math.radians(0)),  # 5
    Part.LineSegment(Vector(13.2, -20.7, 0), Vector(13.2, -13.1, 0)),  # 6
    Part.LineSegment(Vector(13.2, -13.1, 0), Vector(11, -13.1, 0)),  # 7
], False)
sketch13.addConstraint([
    Sketcher.Constraint("Coincident", 0, 1, 1, 1),
    Sketcher.Constraint("Coincident", 1, 2, 2, 2),
    Sketcher.Constraint("Coincident", 2, 1, 3, 1),
    Sketcher.Constraint("Coincident", 3, 2, 4, 1),
    Sketcher.Constraint("Tangent", 4, 2, 5, 1),
    Sketcher.Constraint("Tangent", 5, 2, 6, 1),
    Sketcher.Constraint("Coincident", 6, 2, 7, 1),
    Sketcher.Constraint("Coincident", 7, 2, 0, 2),
    Sketcher.Constraint("Vertical", 1),
    Sketcher.Constraint("Vertical", 3),
    Sketcher.Constraint("Horizontal", 4),
    Sketcher.Constraint("Vertical", 6),
    Sketcher.Constraint("Horizontal", 7),
    Sketcher.Constraint("Coincident", 2, 3, 0, 3),
    Sketcher.Constraint("Equal", 0, 2),
    Sketcher.Constraint("Horizontal", 5, 3, 1, 2),
    Sketcher.Constraint("Horizontal", 1, 2, 2, 1),
    Sketcher.Constraint("Radius", 0, Q("6 mm")),
    Sketcher.Constraint("DistanceX", 2, 1, 1, 2, Q("10 mm")),
    Sketcher.Constraint("DistanceX", 7, 2, 7, 1, Q("2.25 mm")),
    Sketcher.Constraint("DistanceX", 1, 2, 5, 2, Q("1.5 mm")),
    Sketcher.Constraint("DistanceX", -1, 1, 7, 2, Q("11 mm")),
    Sketcher.Constraint("DistanceY", 3, 2, 0, 3, Q("8 mm")),
    Sketcher.Constraint("DistanceY", 0, 3, -1, 1, Q("17.341 mm")),
])
pocket3 = body.newObject("PartDesign::Pocket", "Pocket002")
pocket3.Profile = sketch13
pocket3.Length = 3

doc.recompute()
